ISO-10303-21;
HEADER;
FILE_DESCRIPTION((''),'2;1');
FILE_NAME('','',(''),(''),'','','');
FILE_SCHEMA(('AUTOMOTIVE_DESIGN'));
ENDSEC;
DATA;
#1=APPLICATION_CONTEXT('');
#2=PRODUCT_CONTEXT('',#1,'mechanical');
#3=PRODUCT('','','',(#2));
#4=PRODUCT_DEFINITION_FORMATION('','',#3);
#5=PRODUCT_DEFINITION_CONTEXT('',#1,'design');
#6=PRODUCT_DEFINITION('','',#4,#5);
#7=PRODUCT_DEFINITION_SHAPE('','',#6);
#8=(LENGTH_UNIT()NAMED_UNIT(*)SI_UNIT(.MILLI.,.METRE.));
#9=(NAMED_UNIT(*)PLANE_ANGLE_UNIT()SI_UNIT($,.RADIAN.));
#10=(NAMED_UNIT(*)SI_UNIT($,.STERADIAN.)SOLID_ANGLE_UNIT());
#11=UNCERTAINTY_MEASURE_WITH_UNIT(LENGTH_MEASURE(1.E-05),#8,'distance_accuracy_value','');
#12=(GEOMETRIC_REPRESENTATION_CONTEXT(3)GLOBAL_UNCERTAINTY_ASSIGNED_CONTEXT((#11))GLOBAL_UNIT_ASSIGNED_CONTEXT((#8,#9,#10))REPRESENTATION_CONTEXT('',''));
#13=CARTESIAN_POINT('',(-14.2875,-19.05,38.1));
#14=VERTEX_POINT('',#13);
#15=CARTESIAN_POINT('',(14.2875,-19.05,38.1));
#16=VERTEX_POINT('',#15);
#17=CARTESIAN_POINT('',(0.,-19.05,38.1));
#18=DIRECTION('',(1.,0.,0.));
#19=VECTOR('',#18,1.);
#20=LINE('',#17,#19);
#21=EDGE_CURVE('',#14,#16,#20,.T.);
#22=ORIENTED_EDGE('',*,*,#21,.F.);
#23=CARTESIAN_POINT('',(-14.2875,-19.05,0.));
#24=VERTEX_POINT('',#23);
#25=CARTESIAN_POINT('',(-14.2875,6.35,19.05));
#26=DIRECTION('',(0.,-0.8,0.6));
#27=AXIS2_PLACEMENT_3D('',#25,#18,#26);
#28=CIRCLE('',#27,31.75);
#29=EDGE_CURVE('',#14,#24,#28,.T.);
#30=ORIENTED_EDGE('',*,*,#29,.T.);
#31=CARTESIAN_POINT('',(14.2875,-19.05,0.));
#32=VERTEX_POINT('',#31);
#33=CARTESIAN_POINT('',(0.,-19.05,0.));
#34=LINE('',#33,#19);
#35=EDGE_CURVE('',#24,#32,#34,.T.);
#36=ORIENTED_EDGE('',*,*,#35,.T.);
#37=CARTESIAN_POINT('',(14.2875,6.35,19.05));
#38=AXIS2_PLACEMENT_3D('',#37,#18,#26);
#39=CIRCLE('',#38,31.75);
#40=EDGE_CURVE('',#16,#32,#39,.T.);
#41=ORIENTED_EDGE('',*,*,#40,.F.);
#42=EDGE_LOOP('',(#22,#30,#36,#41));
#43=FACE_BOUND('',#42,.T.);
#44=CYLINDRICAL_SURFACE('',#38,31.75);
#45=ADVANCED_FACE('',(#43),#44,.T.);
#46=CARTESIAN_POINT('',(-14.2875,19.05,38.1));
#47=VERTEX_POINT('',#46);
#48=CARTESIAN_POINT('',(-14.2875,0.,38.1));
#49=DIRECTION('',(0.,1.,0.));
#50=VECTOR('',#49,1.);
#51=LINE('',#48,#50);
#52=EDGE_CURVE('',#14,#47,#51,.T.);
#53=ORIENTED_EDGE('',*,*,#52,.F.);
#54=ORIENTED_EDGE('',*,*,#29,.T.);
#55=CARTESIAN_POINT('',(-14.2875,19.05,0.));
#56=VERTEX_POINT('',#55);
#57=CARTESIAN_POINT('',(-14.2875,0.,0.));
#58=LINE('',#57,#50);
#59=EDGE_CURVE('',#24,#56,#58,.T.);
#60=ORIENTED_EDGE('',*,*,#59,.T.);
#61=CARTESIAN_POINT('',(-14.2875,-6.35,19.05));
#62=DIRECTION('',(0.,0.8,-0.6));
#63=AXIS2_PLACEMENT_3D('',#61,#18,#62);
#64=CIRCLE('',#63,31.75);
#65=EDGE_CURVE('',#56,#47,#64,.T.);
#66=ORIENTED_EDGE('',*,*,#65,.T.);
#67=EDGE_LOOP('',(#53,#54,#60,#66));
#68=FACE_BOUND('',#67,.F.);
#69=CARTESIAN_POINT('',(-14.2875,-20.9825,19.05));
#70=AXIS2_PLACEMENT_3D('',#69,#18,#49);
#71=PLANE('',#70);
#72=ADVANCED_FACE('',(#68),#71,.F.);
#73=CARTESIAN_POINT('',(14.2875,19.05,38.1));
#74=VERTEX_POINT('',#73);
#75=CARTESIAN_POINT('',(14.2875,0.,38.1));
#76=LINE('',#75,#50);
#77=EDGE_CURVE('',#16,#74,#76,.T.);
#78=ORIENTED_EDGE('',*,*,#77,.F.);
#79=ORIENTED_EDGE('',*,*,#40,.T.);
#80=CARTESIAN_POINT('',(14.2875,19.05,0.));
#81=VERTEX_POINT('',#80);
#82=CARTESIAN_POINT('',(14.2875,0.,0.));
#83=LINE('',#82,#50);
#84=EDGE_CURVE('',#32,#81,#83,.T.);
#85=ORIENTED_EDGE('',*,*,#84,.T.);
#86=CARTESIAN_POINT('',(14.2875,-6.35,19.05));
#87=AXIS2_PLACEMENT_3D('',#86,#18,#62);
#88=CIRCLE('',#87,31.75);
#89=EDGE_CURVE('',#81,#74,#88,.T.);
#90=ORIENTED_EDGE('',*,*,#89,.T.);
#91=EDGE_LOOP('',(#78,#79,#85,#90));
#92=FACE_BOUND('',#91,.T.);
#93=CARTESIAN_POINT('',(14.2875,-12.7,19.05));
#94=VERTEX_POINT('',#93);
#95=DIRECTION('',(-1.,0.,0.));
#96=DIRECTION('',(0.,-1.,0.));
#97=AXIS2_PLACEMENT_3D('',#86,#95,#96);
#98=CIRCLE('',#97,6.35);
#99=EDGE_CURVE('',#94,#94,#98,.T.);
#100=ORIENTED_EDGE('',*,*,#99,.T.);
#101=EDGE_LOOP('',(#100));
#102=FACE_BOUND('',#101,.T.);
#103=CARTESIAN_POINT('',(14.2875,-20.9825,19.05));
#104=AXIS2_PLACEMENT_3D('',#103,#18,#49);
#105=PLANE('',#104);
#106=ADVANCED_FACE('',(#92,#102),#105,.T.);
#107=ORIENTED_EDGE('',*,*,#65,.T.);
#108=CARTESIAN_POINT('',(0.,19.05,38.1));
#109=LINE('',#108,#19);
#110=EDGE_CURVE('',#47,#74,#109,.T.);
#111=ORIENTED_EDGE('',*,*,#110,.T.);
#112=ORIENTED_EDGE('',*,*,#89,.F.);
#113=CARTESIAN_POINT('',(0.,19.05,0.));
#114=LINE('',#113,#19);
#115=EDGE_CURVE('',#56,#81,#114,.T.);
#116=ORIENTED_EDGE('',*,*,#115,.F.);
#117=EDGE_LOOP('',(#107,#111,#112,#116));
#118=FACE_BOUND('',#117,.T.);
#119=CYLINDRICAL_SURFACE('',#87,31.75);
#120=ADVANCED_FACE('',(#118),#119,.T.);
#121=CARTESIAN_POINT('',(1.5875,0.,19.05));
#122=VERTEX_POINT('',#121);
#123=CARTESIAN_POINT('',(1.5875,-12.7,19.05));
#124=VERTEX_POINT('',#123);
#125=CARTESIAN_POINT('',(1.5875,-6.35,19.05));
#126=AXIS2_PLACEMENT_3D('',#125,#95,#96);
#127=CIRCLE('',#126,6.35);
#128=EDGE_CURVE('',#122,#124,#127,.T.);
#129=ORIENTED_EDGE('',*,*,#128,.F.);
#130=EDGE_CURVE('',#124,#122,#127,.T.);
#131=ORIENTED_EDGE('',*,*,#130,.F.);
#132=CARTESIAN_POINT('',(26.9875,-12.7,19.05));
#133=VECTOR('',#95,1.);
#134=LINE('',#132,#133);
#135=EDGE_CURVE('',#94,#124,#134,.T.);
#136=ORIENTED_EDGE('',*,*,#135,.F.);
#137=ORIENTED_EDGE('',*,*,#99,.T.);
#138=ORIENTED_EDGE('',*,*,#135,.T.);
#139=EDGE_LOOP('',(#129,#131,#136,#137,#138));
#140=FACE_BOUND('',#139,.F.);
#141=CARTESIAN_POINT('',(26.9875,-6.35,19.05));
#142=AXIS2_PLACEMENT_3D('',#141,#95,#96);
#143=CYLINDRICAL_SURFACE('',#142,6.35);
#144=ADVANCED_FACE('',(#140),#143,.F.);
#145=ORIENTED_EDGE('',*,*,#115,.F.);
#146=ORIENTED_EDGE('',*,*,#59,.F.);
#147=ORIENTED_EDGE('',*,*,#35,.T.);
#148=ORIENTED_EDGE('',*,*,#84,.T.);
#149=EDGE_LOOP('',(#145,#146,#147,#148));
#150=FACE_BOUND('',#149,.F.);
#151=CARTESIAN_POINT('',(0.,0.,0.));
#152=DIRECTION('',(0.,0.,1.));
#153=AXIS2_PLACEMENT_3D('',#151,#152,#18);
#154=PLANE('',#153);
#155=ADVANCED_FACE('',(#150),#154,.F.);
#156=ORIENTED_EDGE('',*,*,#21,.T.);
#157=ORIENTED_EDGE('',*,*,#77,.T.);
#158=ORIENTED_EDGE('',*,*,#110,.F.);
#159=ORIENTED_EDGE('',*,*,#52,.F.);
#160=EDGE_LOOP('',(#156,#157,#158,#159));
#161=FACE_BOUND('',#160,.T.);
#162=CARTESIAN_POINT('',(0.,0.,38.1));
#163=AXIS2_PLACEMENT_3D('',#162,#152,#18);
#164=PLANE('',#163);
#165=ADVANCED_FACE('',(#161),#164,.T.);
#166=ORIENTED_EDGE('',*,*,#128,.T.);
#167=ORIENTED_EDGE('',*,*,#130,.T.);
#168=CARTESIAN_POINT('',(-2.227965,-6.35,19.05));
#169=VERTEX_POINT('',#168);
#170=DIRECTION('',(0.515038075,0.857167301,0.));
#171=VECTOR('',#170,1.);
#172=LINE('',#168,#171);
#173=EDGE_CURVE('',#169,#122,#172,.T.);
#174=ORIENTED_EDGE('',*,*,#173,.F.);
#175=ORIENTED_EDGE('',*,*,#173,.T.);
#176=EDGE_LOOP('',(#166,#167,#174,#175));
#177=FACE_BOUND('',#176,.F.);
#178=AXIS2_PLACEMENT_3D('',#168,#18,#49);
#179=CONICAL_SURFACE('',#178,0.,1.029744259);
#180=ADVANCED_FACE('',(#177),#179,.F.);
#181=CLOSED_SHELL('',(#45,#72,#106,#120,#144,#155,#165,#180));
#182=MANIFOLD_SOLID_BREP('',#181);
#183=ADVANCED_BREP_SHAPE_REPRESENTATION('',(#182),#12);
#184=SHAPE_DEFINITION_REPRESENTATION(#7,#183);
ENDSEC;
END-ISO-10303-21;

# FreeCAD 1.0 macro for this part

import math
import FreeCAD as App
import Part
import Sketcher

V = App.Vector
Q = App.Units.Quantity

doc = App.newDocument("Part")
body = doc.addObject("PartDesign::Body", "Body")

# Sketch on XY plane
sketch1 = doc.addObject("Sketcher::SketchObject", "Sketch")
body.addObject(sketch1)
sketch1.AttachmentSupport = (doc.XY_Plane, [""])
sketch1.MapMode = "FlatFace"
sketch1.addGeometry([
    Part.LineSegment(V(-14.2875, 19.05, 0), V(-14.2875, -19.05, 0)),
    Part.LineSegment(V(-14.2875, -19.05, 0), V(14.2875, -19.05, 0)),
    Part.LineSegment(V(14.2875, -19.05, 0), V(14.2875, 19.05, 0)),
    Part.LineSegment(V(14.2875, 19.05, 0), V(-14.2875, 19.05, 0)),
], False)
sketch1.addConstraint([
    Sketcher.Constraint("Coincident", 0, 2, 1, 1),
    Sketcher.Constraint("Coincident", 1, 2, 2, 1),
    Sketcher.Constraint("Coincident", 2, 2, 3, 1),
    Sketcher.Constraint("Coincident", 3, 2, 0, 1),
    Sketcher.Constraint("Vertical", 0),
    Sketcher.Constraint("Horizontal", 1),
    Sketcher.Constraint("Vertical", 2),
    Sketcher.Constraint("Horizontal", 3),
    Sketcher.Constraint("Symmetric", 0, 2, 2, 2, -1, 1),
    Sketcher.Constraint("DistanceY", 0, 2, 0, 1, Q("1.5 in")),
    Sketcher.Constraint("DistanceX", 1, 1, 1, 2, Q("1.125 in")),
])
pad1 = doc.addObject("PartDesign::Pad", "Pad")
body.addObject(pad1)
pad1.Profile = sketch1
pad1.Length = Q("1.5 in")

# Sketch on YZ plane
sketch2 = doc.addObject("Sketcher::SketchObject", "Sketch001")
body.addObject(sketch2)
sketch2.AttachmentSupport = (doc.YZ_Plane, [""])
sketch2.MapMode = "FlatFace"
sketch2.AttachmentOffset = App.Placement(V(0, 0, 0.5625 * 25.4), App.Rotation())
sketch2.addGeometry([
    Part.ArcOfCircle(Part.Circle(V(6.35, 19.05, 0), V(0, 0, 1), 31.75), math.radians(143.130102), math.radians(216.869898)),
    Part.LineSegment(V(-19.05, 0, 0), V(-19.05, 38.1, 0)),
    Part.LineSegment(V(19.05, 38.1, 0), V(19.05, 0, 0)),
    Part.ArcOfCircle(Part.Circle(V(-6.35, 19.05, 0), V(0, 0, 1), 31.75), math.radians(-36.869898), math.radians(36.869898)),
], False)
sketch2.addConstraint([
    Sketcher.Constraint("Coincident", 0, 1, 1, 2),
    Sketcher.Constraint("Coincident", 1, 1, 0, 2),
    Sketcher.Constraint("Coincident", 2, 1, 3, 2),
    Sketcher.Constraint("Coincident", 3, 1, 2, 2),
    Sketcher.Constraint("Vertical", 1),
    Sketcher.Constraint("Vertical", 2),
    Sketcher.Constraint("Equal", 0, 3),
    Sketcher.Constraint("Symmetric", 1, 1, 3, 1, -1, 1),
    Sketcher.Constraint("Symmetric", 0, 3, 3, 3, -2),
    Sketcher.Constraint("Radius", 0, Q("1.25 in")),
    Sketcher.Constraint("DistanceY", 1, 1, 1, 2, Q("1.5 in")),
    Sketcher.Constraint("DistanceX", 3, 3, 0, 3, Q("0.5 in")),
])
pad2 = doc.addObject("PartDesign::Pad", "Pad001")
body.addObject(pad2)
pad2.Profile = sketch2
pad2.Type = "UpToLast"
pad2.Reversed = True

# Sketch on YZ plane
sketch3 = doc.addObject("Sketcher::SketchObject", "Sketch002")
body.addObject(sketch3)
sketch3.AttachmentSupport = (doc.YZ_Plane, [""])
sketch3.MapMode = "FlatFace"
sketch3.AttachmentOffset = App.Placement(V(0, 0, 0.5625 * 25.4), App.Rotation())
sketch3.addGeometry(Part.Circle(V(-6.35, 19.05, 0), V(0, 0, 1), 6.35), False)
sketch3.addConstraint([
    Sketcher.Constraint("Diameter", 0, Q("0.5 in")),
    Sketcher.Constraint("DistanceX", 0, 3, -1, 1, Q("0.25 in")),
    Sketcher.Constraint("DistanceY", -1, 1, 0, 3, Q("0.75 in")),
])
doc.recompute()
hole = doc.addObject("PartDesign::Hole", "Hole")
body.addObject(hole)
hole.Profile = sketch3
hole.ThreadType = "None"
hole.Diameter = Q("0.5 in")
hole.DepthType = "Dimension"
hole.Depth = Q("0.5 in")
hole.DrillPoint = "Angled"
hole.DrillPointAngle = 118

doc.recompute()
